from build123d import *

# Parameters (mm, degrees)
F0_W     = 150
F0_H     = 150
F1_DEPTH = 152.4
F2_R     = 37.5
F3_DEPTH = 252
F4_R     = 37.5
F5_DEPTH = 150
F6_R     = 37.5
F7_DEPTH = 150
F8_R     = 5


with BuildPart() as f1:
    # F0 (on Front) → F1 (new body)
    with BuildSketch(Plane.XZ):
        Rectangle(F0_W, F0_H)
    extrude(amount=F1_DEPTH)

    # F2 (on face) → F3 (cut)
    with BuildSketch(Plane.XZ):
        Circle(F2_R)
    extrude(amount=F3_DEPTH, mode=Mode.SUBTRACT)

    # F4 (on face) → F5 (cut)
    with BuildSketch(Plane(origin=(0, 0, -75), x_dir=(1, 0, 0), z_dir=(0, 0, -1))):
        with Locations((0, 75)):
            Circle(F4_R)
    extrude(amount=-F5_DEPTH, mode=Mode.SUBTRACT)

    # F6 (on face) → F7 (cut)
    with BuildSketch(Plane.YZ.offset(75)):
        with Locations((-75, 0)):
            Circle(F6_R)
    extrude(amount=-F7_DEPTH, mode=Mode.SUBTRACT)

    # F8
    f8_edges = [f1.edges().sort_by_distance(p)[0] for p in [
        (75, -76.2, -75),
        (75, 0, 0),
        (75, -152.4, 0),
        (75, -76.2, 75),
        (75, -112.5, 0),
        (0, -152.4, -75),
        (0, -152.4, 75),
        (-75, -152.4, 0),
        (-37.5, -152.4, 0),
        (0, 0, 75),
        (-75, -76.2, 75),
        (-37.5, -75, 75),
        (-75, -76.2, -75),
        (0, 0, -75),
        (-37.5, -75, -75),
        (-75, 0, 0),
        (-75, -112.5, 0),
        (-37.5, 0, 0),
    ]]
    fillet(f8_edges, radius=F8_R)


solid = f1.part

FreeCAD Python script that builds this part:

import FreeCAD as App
import Part
import Sketcher
from FreeCAD import Vector


def edges_at(feature, points):
    """Names of the edges that pass closest to the given points."""
    edges = feature.Shape.Edges
    near = lambda p: min(range(len(edges)), key=lambda i: edges[i].distToShape(Part.Vertex(*p))[0])
    return sorted({f"Edge{near(p) + 1}" for p in points})


def add_polygon(sketch, points):
    """Adds a closed chain of lines whose ends are joined by coincident constraints."""
    first, n = sketch.GeometryCount, len(points)
    for a, b in zip(points, points[1:] + points[:1]):
        sketch.addGeometry(Part.LineSegment(App.Vector(*a, 0), App.Vector(*b, 0)), False)
    for i in range(n):
        sketch.addConstraint(Sketcher.Constraint("Coincident", first + i, 2, first + (i + 1) % n, 1))

doc = App.newDocument("Part")
body = doc.addObject("PartDesign::Body", "Body")

sketch1 = body.newObject("Sketcher::SketchObject", "Sketch")
sketch1.AttachmentSupport = (doc.getObject("XZ_Plane"), [""])
sketch1.MapMode = "FlatFace"
add_polygon(sketch1, [(-75, 75), (-75, -75), (75, -75), (75, 75)])
sketch1.addConstraint(Sketcher.Constraint("Vertical", 0))
sketch1.addConstraint(Sketcher.Constraint("Horizontal", 1))
sketch1.addConstraint(Sketcher.Constraint("Vertical", 2))
sketch1.addConstraint(Sketcher.Constraint("Horizontal", 3))
sketch1.addConstraint(Sketcher.Constraint("Symmetric", 0, 2, 2, 2, -1, 1))
sketch1.addConstraint(Sketcher.Constraint("Equal", 3, 0))
sketch1.addConstraint(Sketcher.Constraint("DistanceX", 1, 1, 1, 2, 150.0))
pad1 = body.newObject("PartDesign::Pad", "Pad")
pad1.Profile = sketch1
pad1.Length = 152.4

sketch2 = body.newObject("Sketcher::SketchObject", "Sketch001")
sketch2.AttachmentSupport = (doc.getObject("XZ_Plane"), [""])
sketch2.MapMode = "FlatFace"
sketch2.addGeometry(Part.Circle(Vector(0, 0, 0), Vector(0, 0, 1), 37.5), False)
sketch2.addConstraint(Sketcher.Constraint("Coincident", 0, 3, -1, 1))
sketch2.addConstraint(Sketcher.Constraint("Diameter", 0, 75.0))
pocket1 = body.newObject("PartDesign::Pocket", "Pocket")
pocket1.Profile = sketch2
pocket1.Length = 252
pocket1.Reversed = True

sketch3 = body.newObject("Sketcher::SketchObject", "Sketch002")
sketch3.AttachmentSupport = (doc.getObject("XY_Plane"), [""])
sketch3.MapMode = "FlatFace"
sketch3.AttachmentOffset = App.Placement(Vector(0, 0, -75), App.Rotation())
sketch3.addGeometry(Part.Circle(Vector(0, -75, 0), Vector(0, 0, 1), 37.5), False)
sketch3.addConstraint(Sketcher.Constraint("PointOnObject", 0, 3, -2))
sketch3.addConstraint(Sketcher.Constraint("Diameter", 0, 75.0))
sketch3.addConstraint(Sketcher.Constraint("DistanceY", 0, 3, -1, 1, 75.0))
pocket2 = body.newObject("PartDesign::Pocket", "Pocket001")
pocket2.Profile = sketch3
pocket2.Length = 150
pocket2.Reversed = True

sketch4 = body.newObject("Sketcher::SketchObject", "Sketch003")
sketch4.AttachmentSupport = (doc.getObject("YZ_Plane"), [""])
sketch4.MapMode = "FlatFace"
sketch4.AttachmentOffset = App.Placement(Vector(0, 0, 75), App.Rotation())
sketch4.addGeometry(Part.Circle(Vector(-75, 0, 0), Vector(0, 0, 1), 37.5), False)
sketch4.addConstraint(Sketcher.Constraint("PointOnObject", 0, 3, -1))
sketch4.addConstraint(Sketcher.Constraint("Diameter", 0, 75.0))
sketch4.addConstraint(Sketcher.Constraint("DistanceX", 0, 3, -1, 1, 75.0))
pocket3 = body.newObject("PartDesign::Pocket", "Pocket002")
pocket3.Profile = sketch4
pocket3.Length = 150
doc.recompute()

fillet = body.newObject("PartDesign::Fillet", "Fillet")
fillet.Base = (pocket3, edges_at(pocket3, [
    (75, -76.2, -75),
    (75, 0, 0),
    (75, -152.4, 0),
    (75, -76.2, 75),
    (75, -112.5, 0),
    (0, -152.4, -75),
    (0, -152.4, 75),
    (-75, -152.4, 0),
    (-37.5, -152.4, 0),
    (0, 0, 75),
    (-75, -76.2, 75),
    (-37.5, -75, 75),
    (-75, -76.2, -75),
    (0, 0, -75),
    (-37.5, -75, -75),
    (-75, 0, 0),
    (-75, -112.5, 0),
    (-37.5, 0, 0),
]))
fillet.Radius = 5

doc.recompute()
